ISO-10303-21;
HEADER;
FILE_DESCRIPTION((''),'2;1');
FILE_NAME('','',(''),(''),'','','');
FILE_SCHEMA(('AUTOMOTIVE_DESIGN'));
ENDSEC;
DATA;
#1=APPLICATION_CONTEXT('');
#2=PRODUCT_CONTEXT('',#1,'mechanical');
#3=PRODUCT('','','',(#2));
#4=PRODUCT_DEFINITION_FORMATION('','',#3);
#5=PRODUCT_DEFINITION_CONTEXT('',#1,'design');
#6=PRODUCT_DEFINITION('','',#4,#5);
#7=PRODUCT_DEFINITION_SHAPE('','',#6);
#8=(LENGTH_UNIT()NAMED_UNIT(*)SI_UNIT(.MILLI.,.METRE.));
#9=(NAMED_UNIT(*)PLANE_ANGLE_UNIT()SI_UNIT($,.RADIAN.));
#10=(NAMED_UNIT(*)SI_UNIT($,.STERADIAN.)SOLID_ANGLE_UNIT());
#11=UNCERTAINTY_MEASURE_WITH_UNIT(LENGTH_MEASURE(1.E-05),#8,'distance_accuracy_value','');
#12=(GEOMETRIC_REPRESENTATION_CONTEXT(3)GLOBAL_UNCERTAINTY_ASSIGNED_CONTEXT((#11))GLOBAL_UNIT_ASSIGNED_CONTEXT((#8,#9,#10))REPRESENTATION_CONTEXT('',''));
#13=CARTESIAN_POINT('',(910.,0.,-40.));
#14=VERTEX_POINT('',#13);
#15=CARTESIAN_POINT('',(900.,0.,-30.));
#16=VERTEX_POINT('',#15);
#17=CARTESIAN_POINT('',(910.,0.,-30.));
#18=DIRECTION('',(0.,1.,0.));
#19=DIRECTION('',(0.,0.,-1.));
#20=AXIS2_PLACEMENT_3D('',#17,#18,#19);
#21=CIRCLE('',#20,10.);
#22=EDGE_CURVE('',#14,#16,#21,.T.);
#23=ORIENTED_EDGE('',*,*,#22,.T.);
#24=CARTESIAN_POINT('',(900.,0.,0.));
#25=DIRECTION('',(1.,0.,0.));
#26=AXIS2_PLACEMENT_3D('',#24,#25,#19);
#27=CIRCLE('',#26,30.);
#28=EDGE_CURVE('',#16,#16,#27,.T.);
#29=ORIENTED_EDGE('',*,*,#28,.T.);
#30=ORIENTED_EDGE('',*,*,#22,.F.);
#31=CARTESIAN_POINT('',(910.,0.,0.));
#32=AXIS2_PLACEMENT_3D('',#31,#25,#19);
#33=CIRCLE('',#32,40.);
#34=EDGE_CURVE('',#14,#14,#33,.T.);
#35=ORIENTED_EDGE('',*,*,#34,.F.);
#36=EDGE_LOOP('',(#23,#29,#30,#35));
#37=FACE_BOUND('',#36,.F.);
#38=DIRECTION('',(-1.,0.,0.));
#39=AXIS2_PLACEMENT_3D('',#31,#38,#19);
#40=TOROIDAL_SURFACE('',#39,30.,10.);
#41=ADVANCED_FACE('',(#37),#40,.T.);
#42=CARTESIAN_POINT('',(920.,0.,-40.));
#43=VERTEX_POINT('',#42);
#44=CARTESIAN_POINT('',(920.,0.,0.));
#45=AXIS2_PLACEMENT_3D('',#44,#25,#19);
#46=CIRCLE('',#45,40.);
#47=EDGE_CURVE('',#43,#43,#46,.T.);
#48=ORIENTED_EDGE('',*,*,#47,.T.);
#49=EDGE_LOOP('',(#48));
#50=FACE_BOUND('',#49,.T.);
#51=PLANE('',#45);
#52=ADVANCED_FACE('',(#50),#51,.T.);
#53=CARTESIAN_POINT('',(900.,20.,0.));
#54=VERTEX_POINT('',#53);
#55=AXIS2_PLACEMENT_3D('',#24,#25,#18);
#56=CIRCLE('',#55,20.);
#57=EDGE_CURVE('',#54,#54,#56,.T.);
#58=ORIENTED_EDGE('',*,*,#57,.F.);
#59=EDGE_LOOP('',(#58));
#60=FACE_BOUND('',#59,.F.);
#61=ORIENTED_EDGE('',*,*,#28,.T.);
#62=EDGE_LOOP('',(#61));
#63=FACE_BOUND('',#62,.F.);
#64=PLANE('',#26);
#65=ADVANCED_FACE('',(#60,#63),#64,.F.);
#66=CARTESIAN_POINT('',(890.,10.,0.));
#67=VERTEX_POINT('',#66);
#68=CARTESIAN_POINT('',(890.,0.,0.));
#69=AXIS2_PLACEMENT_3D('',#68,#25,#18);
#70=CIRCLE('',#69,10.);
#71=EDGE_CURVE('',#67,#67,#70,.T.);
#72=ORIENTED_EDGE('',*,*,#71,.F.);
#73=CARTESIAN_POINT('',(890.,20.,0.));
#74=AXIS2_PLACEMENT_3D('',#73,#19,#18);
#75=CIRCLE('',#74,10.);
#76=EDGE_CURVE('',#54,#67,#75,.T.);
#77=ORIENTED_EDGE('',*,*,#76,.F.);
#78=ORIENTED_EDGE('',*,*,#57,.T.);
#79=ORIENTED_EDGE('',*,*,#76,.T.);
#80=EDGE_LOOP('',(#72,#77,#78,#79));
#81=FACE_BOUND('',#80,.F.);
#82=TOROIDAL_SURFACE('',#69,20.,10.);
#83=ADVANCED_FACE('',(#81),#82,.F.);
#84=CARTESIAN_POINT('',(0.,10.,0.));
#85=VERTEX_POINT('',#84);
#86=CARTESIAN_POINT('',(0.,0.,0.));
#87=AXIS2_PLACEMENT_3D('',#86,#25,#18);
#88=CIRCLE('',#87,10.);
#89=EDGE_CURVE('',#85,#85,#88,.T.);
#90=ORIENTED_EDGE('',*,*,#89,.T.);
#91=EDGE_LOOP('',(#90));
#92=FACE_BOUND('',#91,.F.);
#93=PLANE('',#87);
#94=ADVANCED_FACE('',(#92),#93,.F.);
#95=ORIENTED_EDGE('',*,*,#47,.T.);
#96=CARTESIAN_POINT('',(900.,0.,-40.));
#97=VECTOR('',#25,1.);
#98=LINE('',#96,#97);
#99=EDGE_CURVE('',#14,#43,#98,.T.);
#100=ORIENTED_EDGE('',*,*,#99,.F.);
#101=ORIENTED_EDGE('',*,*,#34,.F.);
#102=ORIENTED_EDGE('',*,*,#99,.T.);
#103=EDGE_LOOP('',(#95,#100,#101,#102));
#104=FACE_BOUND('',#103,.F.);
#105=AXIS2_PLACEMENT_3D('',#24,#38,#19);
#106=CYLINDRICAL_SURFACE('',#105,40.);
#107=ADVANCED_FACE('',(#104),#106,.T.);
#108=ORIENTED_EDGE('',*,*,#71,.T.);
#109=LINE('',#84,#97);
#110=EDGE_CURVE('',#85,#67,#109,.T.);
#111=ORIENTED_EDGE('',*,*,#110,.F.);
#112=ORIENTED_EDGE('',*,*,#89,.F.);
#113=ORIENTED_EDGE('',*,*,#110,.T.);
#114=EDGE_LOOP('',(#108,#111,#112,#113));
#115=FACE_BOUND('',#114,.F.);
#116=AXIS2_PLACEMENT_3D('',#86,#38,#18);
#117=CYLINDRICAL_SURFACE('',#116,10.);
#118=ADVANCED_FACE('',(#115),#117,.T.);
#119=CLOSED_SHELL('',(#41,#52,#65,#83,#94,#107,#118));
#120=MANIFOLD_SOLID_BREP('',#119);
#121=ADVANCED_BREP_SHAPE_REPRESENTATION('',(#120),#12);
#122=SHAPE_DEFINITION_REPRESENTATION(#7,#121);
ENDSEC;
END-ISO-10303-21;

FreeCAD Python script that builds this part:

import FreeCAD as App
import Part
import Sketcher

V = App.Vector


def edges_at(feature, points):
    """Names of the edges that pass closest to the given points."""
    edges = feature.Shape.Edges
    near = lambda p: min(range(len(edges)), key=lambda i: edges[i].distToShape(Part.Vertex(*p))[0])
    return sorted({f"Edge{near(p) + 1}" for p in points})

doc = App.newDocument("Part")
body = doc.addObject("PartDesign::Body", "Body")

# Sketch on YZ plane
sketch1 = body.newObject("Sketcher::SketchObject", "Sketch")
sketch1.AttachmentSupport = (doc.getObject("YZ_Plane"), [""])
sketch1.MapMode = "FlatFace"
sketch1.addGeometry(Part.Circle(V(0, 0, 0), V(0, 0, 1), 10), False)
sketch1.addConstraint([
    Sketcher.Constraint("Coincident", 0, 3, -1, 1),
    Sketcher.Constraint("Diameter", 0, 20.0),
])
pad1 = body.newObject("PartDesign::Pad", "Pad")
pad1.Profile = sketch1
pad1.Length = 900

# Sketch on YZ plane
sketch2 = body.newObject("Sketcher::SketchObject", "Sketch001")
sketch2.AttachmentSupport = (doc.getObject("YZ_Plane"), [""])
sketch2.MapMode = "FlatFace"
sketch2.AttachmentOffset = App.Placement(V(0, 0, 900), App.Rotation())
sketch2.addGeometry(Part.Circle(V(0, 0, 0), V(0, 0, 1), 40), False)
sketch2.addConstraint([
    Sketcher.Constraint("Coincident", 0, 3, -1, 1),
    Sketcher.Constraint("Diameter", 0, 80.0),
])
pad2 = body.newObject("PartDesign::Pad", "Pad001")
pad2.Profile = sketch2
pad2.Length = 20
doc.recompute()

fillet = body.newObject("PartDesign::Fillet", "Fillet")
fillet.Base = (pad2, edges_at(pad2, [(900, 0, 40)]))
fillet.Radius = 10
doc.recompute()

fillet2 = body.newObject("PartDesign::Fillet", "Fillet001")
fillet2.Base = (fillet, edges_at(fillet, [(900, -10, 0)]))
fillet2.Radius = 10

doc.recompute()
